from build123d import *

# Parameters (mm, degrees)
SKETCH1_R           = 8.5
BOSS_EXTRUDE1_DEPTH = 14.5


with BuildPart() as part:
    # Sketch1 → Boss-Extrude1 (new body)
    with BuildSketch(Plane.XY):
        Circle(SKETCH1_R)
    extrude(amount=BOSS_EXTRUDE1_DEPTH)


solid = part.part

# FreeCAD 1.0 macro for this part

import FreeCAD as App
import Part
import Sketcher

V = App.Vector

doc = App.newDocument("Part")
body = doc.addObject("PartDesign::Body", "Body")

# Sketch on XY plane
sketch1 = body.newObject("Sketcher::SketchObject", "Sketch")
sketch1.AttachmentSupport = (doc.getObject("XY_Plane"), [""])
sketch1.MapMode = "FlatFace"
sketch1.addGeometry(Part.Circle(V(0, 0, 0), V(0, 0, 1), 8), False)
sketch1.addConstraint([
    Sketcher.Constraint("Coincident", 0, 3, -1, 1),
    Sketcher.Constraint("Diameter", 0, 17.0),
])
pad1 = body.newObject("PartDesign::Pad", "Pad")
pad1.Profile = sketch1
pad1.Length = 14.5

doc.recompute()
